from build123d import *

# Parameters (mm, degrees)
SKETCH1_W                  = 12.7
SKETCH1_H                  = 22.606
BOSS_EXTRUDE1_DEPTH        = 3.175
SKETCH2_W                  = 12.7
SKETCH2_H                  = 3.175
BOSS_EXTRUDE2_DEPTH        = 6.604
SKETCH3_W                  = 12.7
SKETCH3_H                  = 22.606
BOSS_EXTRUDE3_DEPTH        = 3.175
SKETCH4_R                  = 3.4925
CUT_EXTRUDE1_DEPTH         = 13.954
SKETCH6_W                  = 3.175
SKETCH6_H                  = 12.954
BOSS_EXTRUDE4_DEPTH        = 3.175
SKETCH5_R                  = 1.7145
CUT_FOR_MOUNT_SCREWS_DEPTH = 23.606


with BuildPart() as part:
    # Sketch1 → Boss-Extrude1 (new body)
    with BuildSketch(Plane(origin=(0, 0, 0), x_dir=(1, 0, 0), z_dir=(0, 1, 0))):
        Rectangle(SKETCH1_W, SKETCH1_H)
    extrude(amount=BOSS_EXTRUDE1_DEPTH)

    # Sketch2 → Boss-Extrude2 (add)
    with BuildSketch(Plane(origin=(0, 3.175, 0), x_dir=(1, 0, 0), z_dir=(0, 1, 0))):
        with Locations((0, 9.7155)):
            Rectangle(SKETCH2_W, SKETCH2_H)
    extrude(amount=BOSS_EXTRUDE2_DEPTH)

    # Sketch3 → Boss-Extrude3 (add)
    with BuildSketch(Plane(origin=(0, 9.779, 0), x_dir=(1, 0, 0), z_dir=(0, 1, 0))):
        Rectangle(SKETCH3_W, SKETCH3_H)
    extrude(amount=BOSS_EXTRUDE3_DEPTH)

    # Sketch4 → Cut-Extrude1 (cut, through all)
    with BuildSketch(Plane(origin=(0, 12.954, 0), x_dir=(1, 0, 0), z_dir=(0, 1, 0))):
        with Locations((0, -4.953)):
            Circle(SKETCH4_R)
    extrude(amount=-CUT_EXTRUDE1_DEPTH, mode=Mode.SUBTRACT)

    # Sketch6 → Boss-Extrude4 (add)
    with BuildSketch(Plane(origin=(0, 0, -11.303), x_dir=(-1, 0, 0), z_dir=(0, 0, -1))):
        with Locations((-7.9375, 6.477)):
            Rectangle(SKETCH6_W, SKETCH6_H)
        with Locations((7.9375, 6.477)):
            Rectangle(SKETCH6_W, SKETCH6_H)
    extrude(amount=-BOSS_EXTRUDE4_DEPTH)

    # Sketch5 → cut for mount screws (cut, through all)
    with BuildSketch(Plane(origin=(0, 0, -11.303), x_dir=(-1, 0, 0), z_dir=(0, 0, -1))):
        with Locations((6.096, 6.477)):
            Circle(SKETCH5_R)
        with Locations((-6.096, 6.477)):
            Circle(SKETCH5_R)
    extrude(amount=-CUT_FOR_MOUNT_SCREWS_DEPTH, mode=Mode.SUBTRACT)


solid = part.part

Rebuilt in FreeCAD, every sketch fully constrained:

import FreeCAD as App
import Part
import Sketcher
from FreeCAD import Vector
Q = App.Units.Quantity

doc = App.newDocument("Part")
body = doc.addObject("PartDesign::Body", "Body")

# Sketch on XZ plane
sketch1 = body.newObject("Sketcher::SketchObject", "Sketch")
sketch1.AttachmentSupport = (doc.getObject("XZ_Plane"), [""])
sketch1.MapMode = "FlatFace"
sketch1.addGeometry([
    Part.LineSegment(Vector(-6, -11, 0), Vector(-6, 11, 0)),
    Part.LineSegment(Vector(-6, 11, 0), Vector(6, 11, 0)),
    Part.LineSegment(Vector(6, 11, 0), Vector(6, -11, 0)),
    Part.LineSegment(Vector(6, -11, 0), Vector(-6, -11, 0)),
], False)
sketch1.addConstraint([
    Sketcher.Constraint("Coincident", 0, 2, 1, 1),
    Sketcher.Constraint("Coincident", 1, 2, 2, 1),
    Sketcher.Constraint("Coincident", 2, 2, 3, 1),
    Sketcher.Constraint("Coincident", 3, 2, 0, 1),
    Sketcher.Constraint("Vertical", 0),
    Sketcher.Constraint("Horizontal", 1),
    Sketcher.Constraint("Vertical", 2),
    Sketcher.Constraint("Horizontal", 3),
    Sketcher.Constraint("Symmetric", 0, 2, 2, 2, -1, 1),
    Sketcher.Constraint("DistanceX", 1, 1, 1, 2, Q("0.5 in")),
    Sketcher.Constraint("DistanceY", 0, 1, 0, 2, Q("0.89 in")),
])
pad1 = body.newObject("PartDesign::Pad", "Pad")
pad1.Profile = sketch1
pad1.Length = Q("0.125 in")
pad1.Reversed = True

# Sketch on XZ plane
sketch2 = body.newObject("Sketcher::SketchObject", "Sketch001")
sketch2.AttachmentSupport = (doc.getObject("XZ_Plane"), [""])
sketch2.MapMode = "FlatFace"
sketch2.AttachmentOffset = App.Placement(Vector(0, 0, -0.125 * 25.4), App.Rotation())
sketch2.addGeometry([
    Part.LineSegment(Vector(-6.3, -11.3, 0), Vector(-6.3, -8.1, 0)),
    Part.LineSegment(Vector(-6.3, -8.1, 0), Vector(6.3, -8.1, 0)),
    Part.LineSegment(Vector(6.3, -8.1, 0), Vector(6.3, -11.3, 0)),
    Part.LineSegment(Vector(6.3, -11.3, 0), Vector(-6.3, -11.3, 0)),
], False)
sketch2.addConstraint([
    Sketcher.Constraint("Coincident", 0, 2, 1, 1),
    Sketcher.Constraint("Coincident", 1, 2, 2, 1),
    Sketcher.Constraint("Coincident", 2, 2, 3, 1),
    Sketcher.Constraint("Coincident", 3, 2, 0, 1),
    Sketcher.Constraint("Vertical", 0),
    Sketcher.Constraint("Horizontal", 1),
    Sketcher.Constraint("Vertical", 2),
    Sketcher.Constraint("Horizontal", 3),
    Sketcher.Constraint("DistanceX", 1, 1, 1, 2, Q("0.5 in")),
    Sketcher.Constraint("DistanceY", 0, 1, 0, 2, Q("0.125 in")),
    Sketcher.Constraint("DistanceX", 0, 2, -1, 1, Q("0.25 in")),
    Sketcher.Constraint("DistanceY", 0, 2, -1, 1, Q("0.32 in")),
])
pad2 = body.newObject("PartDesign::Pad", "Pad001")
pad2.Profile = sketch2
pad2.Length = Q("0.26 in")
pad2.Reversed = True

# Sketch on XZ plane
sketch3 = body.newObject("Sketcher::SketchObject", "Sketch002")
sketch3.AttachmentSupport = (doc.getObject("XZ_Plane"), [""])
sketch3.MapMode = "FlatFace"
sketch3.AttachmentOffset = App.Placement(Vector(0, 0, -0.385 * 25.4), App.Rotation())
sketch3.addGeometry([
    Part.LineSegment(Vector(-6, -11, 0), Vector(-6, 11, 0)),
    Part.LineSegment(Vector(-6, 11, 0), Vector(6, 11, 0)),
    Part.LineSegment(Vector(6, 11, 0), Vector(6, -11, 0)),
    Part.LineSegment(Vector(6, -11, 0), Vector(-6, -11, 0)),
], False)
sketch3.addConstraint([
    Sketcher.Constraint("Coincident", 0, 2, 1, 1),
    Sketcher.Constraint("Coincident", 1, 2, 2, 1),
    Sketcher.Constraint("Coincident", 2, 2, 3, 1),
    Sketcher.Constraint("Coincident", 3, 2, 0, 1),
    Sketcher.Constraint("Vertical", 0),
    Sketcher.Constraint("Horizontal", 1),
    Sketcher.Constraint("Vertical", 2),
    Sketcher.Constraint("Horizontal", 3),
    Sketcher.Constraint("Symmetric", 0, 2, 2, 2, -1, 1),
    Sketcher.Constraint("DistanceX", 1, 1, 1, 2, Q("0.5 in")),
    Sketcher.Constraint("DistanceY", 0, 1, 0, 2, Q("0.89 in")),
])
pad3 = body.newObject("PartDesign::Pad", "Pad002")
pad3.Profile = sketch3
pad3.Length = Q("0.125 in")
pad3.Reversed = True

# Sketch on XZ plane
sketch4 = body.newObject("Sketcher::SketchObject", "Sketch003")
sketch4.AttachmentSupport = (doc.getObject("XZ_Plane"), [""])
sketch4.MapMode = "FlatFace"
sketch4.AttachmentOffset = App.Placement(Vector(0, 0, -0.51 * 25.4), App.Rotation())
sketch4.addGeometry(Part.Circle(Vector(0, 5, 0), Vector(0, 0, 1), 3.5), False)
sketch4.addConstraint([
    Sketcher.Constraint("PointOnObject", 0, 3, -2),
    Sketcher.Constraint("Diameter", 0, Q("0.275 in")),
    Sketcher.Constraint("DistanceY", -1, 1, 0, 3, Q("0.195 in")),
])
pocket1 = body.newObject("PartDesign::Pocket", "Pocket")
pocket1.Profile = sketch4
pocket1.Type = "ThroughAll"
pocket1.Reversed = True

# Sketch on XY plane
sketch5 = body.newObject("Sketcher::SketchObject", "Sketch004")
sketch5.AttachmentSupport = (doc.getObject("XY_Plane"), [""])
sketch5.MapMode = "FlatFace"
sketch5.AttachmentOffset = App.Placement(Vector(0, 0, -0.445 * 25.4), App.Rotation())
sketch5.addGeometry([
    Part.LineSegment(Vector(9.5, 13, 0), Vector(9.5, 0, 0)),  # 0
    Part.LineSegment(Vector(9.5, 0, 0), Vector(6.3, 0, 0)),  # 1
    Part.LineSegment(Vector(6.3, 0, 0), Vector(6.3, 13, 0)),  # 2
    Part.LineSegment(Vector(6.3, 13, 0), Vector(9.5, 13, 0)),  # 3
    Part.LineSegment(Vector(-6.3, 13, 0), Vector(-6.3, 0, 0)),  # 4
    Part.LineSegment(Vector(-6.3, 0, 0), Vector(-9.5, 0, 0)),  # 5
    Part.LineSegment(Vector(-9.5, 0, 0), Vector(-9.5, 13, 0)),  # 6
    Part.LineSegment(Vector(-9.5, 13, 0), Vector(-6.3, 13, 0)),  # 7
], False)
sketch5.addConstraint([
    Sketcher.Constraint("Coincident", 0, 2, 1, 1),
    Sketcher.Constraint("Coincident", 1, 2, 2, 1),
    Sketcher.Constraint("Coincident", 2, 2, 3, 1),
    Sketcher.Constraint("Coincident", 3, 2, 0, 1),
    Sketcher.Constraint("Coincident", 4, 2, 5, 1),
    Sketcher.Constraint("Coincident", 5, 2, 6, 1),
    Sketcher.Constraint("Coincident", 6, 2, 7, 1),
    Sketcher.Constraint("Coincident", 7, 2, 4, 1),
    Sketcher.Constraint("Vertical", 0),
    Sketcher.Constraint("Horizontal", 1),
    Sketcher.Constraint("Vertical", 2),
    Sketcher.Constraint("Horizontal", 3),
    Sketcher.Constraint("Vertical", 4),
    Sketcher.Constraint("Horizontal", 5),
    Sketcher.Constraint("Vertical", 6),
    Sketcher.Constraint("Horizontal", 7),
    Sketcher.Constraint("Symmetric", 1, 2, 4, 2, -1, 1),
    Sketcher.Constraint("Symmetric", 0, 2, 5, 2, -2),
    Sketcher.Constraint("Horizontal", 3, 2, 6, 2),
    Sketcher.Constraint("DistanceY", 0, 2, 0, 1, Q("0.51 in")),
    Sketcher.Constraint("DistanceX", 4, 2, 1, 2, Q("0.5 in")),
    Sketcher.Constraint("DistanceX", 1, 2, 1, 1, Q("0.125 in")),
])
pad4 = body.newObject("PartDesign::Pad", "Pad003")
pad4.Profile = sketch5
pad4.Length = Q("0.125 in")

# Sketch on XY plane
sketch6 = body.newObject("Sketcher::SketchObject", "Sketch005")
sketch6.AttachmentSupport = (doc.getObject("XY_Plane"), [""])
sketch6.MapMode = "FlatFace"
sketch6.AttachmentOffset = App.Placement(Vector(0, 0, -0.445 * 25.4), App.Rotation())
sketch6.addGeometry([
    Part.Circle(Vector(-6.1, 6.5, 0), Vector(0, 0, 1), 1.7),
    Part.Circle(Vector(6.1, 6.5, 0), Vector(0, 0, 1), 1.7),
], False)
sketch6.addConstraint([
    Sketcher.Constraint("Equal", 0, 1),
    Sketcher.Constraint("Symmetric", 0, 3, 1, 3, -2),
    Sketcher.Constraint("Diameter", 0, Q("0.135 in")),
    Sketcher.Constraint("DistanceX", 0, 3, -1, 1, Q("0.24 in")),
    Sketcher.Constraint("DistanceY", -1, 1, 0, 3, Q("0.255 in")),
])
pocket2 = body.newObject("PartDesign::Pocket", "Pocket001")
pocket2.Profile = sketch6
pocket2.Type = "ThroughAll"
pocket2.Reversed = True

doc.recompute()
